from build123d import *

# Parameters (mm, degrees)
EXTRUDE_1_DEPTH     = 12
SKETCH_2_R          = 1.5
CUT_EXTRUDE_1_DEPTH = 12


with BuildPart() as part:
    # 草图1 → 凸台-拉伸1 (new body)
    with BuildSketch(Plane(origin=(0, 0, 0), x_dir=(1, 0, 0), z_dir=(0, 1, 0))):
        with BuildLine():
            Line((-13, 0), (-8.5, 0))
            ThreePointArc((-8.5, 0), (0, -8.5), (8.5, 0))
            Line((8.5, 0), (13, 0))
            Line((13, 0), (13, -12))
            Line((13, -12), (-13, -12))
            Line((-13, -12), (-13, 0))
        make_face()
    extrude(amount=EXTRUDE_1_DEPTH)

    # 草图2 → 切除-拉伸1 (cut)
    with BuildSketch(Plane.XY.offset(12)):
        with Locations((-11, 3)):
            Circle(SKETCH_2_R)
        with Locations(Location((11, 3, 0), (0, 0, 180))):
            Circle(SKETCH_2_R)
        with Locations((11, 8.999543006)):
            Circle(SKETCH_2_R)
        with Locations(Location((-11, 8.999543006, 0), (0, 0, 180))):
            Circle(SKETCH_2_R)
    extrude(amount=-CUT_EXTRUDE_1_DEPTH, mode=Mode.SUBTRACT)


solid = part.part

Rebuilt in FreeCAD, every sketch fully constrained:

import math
import FreeCAD as App
import Part
import Sketcher

V = App.Vector
Q = App.Units.Quantity

doc = App.newDocument("Part")
body = doc.addObject("PartDesign::Body", "Body")

sketch1 = doc.addObject("Sketcher::SketchObject", "Sketch")
body.addObject(sketch1)
sketch1.AttachmentSupport = (doc.XZ_Plane, [""])
sketch1.MapMode = "FlatFace"
sketch1.addGeometry([
    Part.LineSegment(V(-8.5, 0, 0), V(-13, 0, 0)),
    Part.LineSegment(V(-13, 0, 0), V(-13, 12, 0)),
    Part.LineSegment(V(-13, 12, 0), V(13, 12, 0)),
    Part.LineSegment(V(13, 12, 0), V(13, 0, 0)),
    Part.LineSegment(V(13, 0, 0), V(8.5, 0, 0)),
    Part.ArcOfCircle(Part.Circle(V(0, 0, 0), V(0, 0, 1), 8.5), math.radians(0), math.radians(180)),
], False)
sketch1.addConstraint([
    Sketcher.Constraint("Coincident", 0, 2, 1, 1),
    Sketcher.Constraint("Coincident", 1, 2, 2, 1),
    Sketcher.Constraint("Coincident", 2, 2, 3, 1),
    Sketcher.Constraint("Coincident", 3, 2, 4, 1),
    Sketcher.Constraint("Coincident", 4, 2, 5, 1),
    Sketcher.Constraint("Coincident", 5, 2, 0, 1),
    Sketcher.Constraint("Horizontal", 0),
    Sketcher.Constraint("Vertical", 1),
    Sketcher.Constraint("Horizontal", 2),
    Sketcher.Constraint("Vertical", 3),
    Sketcher.Constraint("Horizontal", 4),
    Sketcher.Constraint("Coincident", 5, 3, -1, 1),
    Sketcher.Constraint("Symmetric", 0, 2, 3, 2, -1, 1),
    Sketcher.Constraint("PointOnObject", 0, 2, -1),
    Sketcher.Constraint("Radius", 5, Q("8.5 mm")),
    Sketcher.Constraint("DistanceX", 2, 1, 2, 2, Q("26 mm")),
    Sketcher.Constraint("DistanceY", 1, 1, 1, 2, Q("12 mm")),
])
pad1 = doc.addObject("PartDesign::Pad", "Pad")
body.addObject(pad1)
pad1.Profile = sketch1
pad1.Length = 12
pad1.Reversed = True

sketch2 = doc.addObject("Sketcher::SketchObject", "Sketch001")
body.addObject(sketch2)
sketch2.AttachmentSupport = (doc.XY_Plane, [""])
sketch2.MapMode = "FlatFace"
sketch2.AttachmentOffset = App.Placement(V(0, 0, 12), App.Rotation())
sketch2.addGeometry([
    Part.Circle(V(-11, 3, 0), V(0, 0, 1), 1.5),
    Part.Circle(V(11, 3, 0), V(0, 0, 1), 1.5),
    Part.Circle(V(11, 9, 0), V(0, 0, 1), 1.5),
    Part.Circle(V(-11, 9, 0), V(0, 0, 1), 1.5),
], False)
sketch2.addConstraint([
    Sketcher.Constraint("Equal", 0, 1),
    Sketcher.Constraint("Equal", 1, 2),
    Sketcher.Constraint("Equal", 2, 3),
    Sketcher.Constraint("Symmetric", 0, 3, 1, 3, -2),
    Sketcher.Constraint("Symmetric", 2, 3, 3, 3, -2),
    Sketcher.Constraint("Vertical", 1, 3, 2, 3),
    Sketcher.Constraint("Diameter", 0, Q("3 mm")),
    Sketcher.Constraint("DistanceX", 0, 3, -1, 1, Q("11 mm")),
    Sketcher.Constraint("DistanceY", -1, 1, 0, 3, Q("3 mm")),
    Sketcher.Constraint("DistanceY", -1, 1, 2, 3, Q("8.999543 mm")),
])
pocket1 = doc.addObject("PartDesign::Pocket", "Pocket")
body.addObject(pocket1)
pocket1.Profile = sketch2
pocket1.Length = 12

doc.recompute()
